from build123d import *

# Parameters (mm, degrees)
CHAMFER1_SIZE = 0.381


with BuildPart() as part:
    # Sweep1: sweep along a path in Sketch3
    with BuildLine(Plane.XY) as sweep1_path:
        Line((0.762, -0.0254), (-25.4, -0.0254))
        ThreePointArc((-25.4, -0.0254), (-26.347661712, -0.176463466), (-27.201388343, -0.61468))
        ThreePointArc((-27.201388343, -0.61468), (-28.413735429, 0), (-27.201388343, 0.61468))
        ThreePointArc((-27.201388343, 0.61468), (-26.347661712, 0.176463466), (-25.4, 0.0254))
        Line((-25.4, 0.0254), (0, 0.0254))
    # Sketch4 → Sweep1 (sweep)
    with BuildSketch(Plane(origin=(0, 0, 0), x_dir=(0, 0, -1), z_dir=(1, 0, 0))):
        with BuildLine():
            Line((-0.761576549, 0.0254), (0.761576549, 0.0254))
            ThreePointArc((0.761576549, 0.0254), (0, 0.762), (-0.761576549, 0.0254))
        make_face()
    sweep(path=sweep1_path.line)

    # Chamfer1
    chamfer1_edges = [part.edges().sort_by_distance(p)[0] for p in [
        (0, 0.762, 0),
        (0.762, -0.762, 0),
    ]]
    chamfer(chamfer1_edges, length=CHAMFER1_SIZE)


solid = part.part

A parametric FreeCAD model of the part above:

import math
import FreeCAD as App
import Part
import Sketcher

V = App.Vector
Q = App.Units.Quantity


def edges_at(feature, points):
    """Names of the edges that pass closest to the given points."""
    edges = feature.Shape.Edges
    near = lambda p: min(range(len(edges)), key=lambda i: edges[i].distToShape(Part.Vertex(*p))[0])
    return sorted({f"Edge{near(p) + 1}" for p in points})

doc = App.newDocument("Part")
body = doc.addObject("PartDesign::Body", "Body")

# Sketch on YZ plane
sketch1 = doc.addObject("Sketcher::SketchObject", "Sketch")
body.addObject(sketch1)
sketch1.AttachmentSupport = (doc.YZ_Plane, [""])
sketch1.MapMode = "FlatFace"
sketch1.addGeometry([
    Part.LineSegment(V(0, 0.8, 0), V(0, -0.8, 0)),
    Part.ArcOfCircle(Part.Circle(V(0, 0, 0), V(0, 0, 1), 0.8), math.radians(-88), math.radians(88)),
], False)
sketch1.addConstraint([
    Sketcher.Constraint("Coincident", 0, 1, 1, 2),
    Sketcher.Constraint("Coincident", 1, 1, 0, 2),
    Sketcher.Constraint("Vertical", 0),
    Sketcher.Constraint("Coincident", 1, 3, -1, 1),
    Sketcher.Constraint("Radius", 1, Q("0.03 in")),
    Sketcher.Constraint("DistanceX", -1, 1, 0, 1, Q("0.001 in")),
])

# Sketch on XY plane
sketch2 = doc.addObject("Sketcher::SketchObject", "Sketch001")
body.addObject(sketch2)
sketch2.AttachmentSupport = (doc.XY_Plane, [""])
sketch2.MapMode = "FlatFace"
sketch2.addGeometry([
    Part.LineSegment(V(0.8, 0, 0), V(-25.4, 0, 0)),  # 0
    Part.ArcOfCircle(Part.Circle(V(-25.4, -3.1, 0), V(0, 0, 1), 3), math.radians(90), math.radians(126)),  # 1
    Part.ArcOfCircle(Part.Circle(V(-27.7, 0, 0), V(0, 0, 1), 0.8), math.radians(54), math.radians(306)),  # 2
    Part.ArcOfCircle(Part.Circle(V(-25.4, 3.1, 0), V(0, 0, 1), 3), math.radians(-126), math.radians(-90)),  # 3
    Part.LineSegment(V(-25.4, 0, 0), V(0, 0, 0)),  # 4
], False)
sketch2.addConstraint([
    Sketcher.Constraint("Tangent", 0, 2, 1, 1),
    Sketcher.Constraint("Tangent", 1, 2, 2, 2),
    Sketcher.Constraint("Tangent", 2, 1, 3, 1),
    Sketcher.Constraint("Tangent", 3, 2, 4, 1),
    Sketcher.Constraint("Horizontal", 0),
    Sketcher.Constraint("Horizontal", 4),
    Sketcher.Constraint("Equal", 1, 3),
    Sketcher.Constraint("Symmetric", 1, 3, 3, 3, -1),
    Sketcher.Constraint("PointOnObject", 4, 2, -2),
    Sketcher.Constraint("DistanceX", 4, 1, 4, 2, Q("1 in")),
    Sketcher.Constraint("Radius", 1, Q("0.12 in")),
    Sketcher.Constraint("Radius", 2, Q("0.03 in")),
    Sketcher.Constraint("DistanceX", 0, 2, 0, 1, Q("1.03 in")),
    Sketcher.Constraint("DistanceY", 1, 3, -1, 1, Q("0.121 in")),
])
doc.recompute()

additivepipe = doc.addObject("PartDesign::AdditivePipe", "AdditivePipe")
body.addObject(additivepipe)
additivepipe.Profile = sketch1
additivepipe.Spine = (sketch2, ["Edge1", "Edge2", "Edge3", "Edge4", "Edge5"])
doc.recompute()

chamfer = doc.addObject("PartDesign::Chamfer", "Chamfer")
body.addObject(chamfer)
chamfer.Base = (additivepipe, edges_at(additivepipe, [(0, 0.762, 0), (0.762, -0.762, 0)]))
chamfer.Size = Q("0.015 in")

doc.recompute()
